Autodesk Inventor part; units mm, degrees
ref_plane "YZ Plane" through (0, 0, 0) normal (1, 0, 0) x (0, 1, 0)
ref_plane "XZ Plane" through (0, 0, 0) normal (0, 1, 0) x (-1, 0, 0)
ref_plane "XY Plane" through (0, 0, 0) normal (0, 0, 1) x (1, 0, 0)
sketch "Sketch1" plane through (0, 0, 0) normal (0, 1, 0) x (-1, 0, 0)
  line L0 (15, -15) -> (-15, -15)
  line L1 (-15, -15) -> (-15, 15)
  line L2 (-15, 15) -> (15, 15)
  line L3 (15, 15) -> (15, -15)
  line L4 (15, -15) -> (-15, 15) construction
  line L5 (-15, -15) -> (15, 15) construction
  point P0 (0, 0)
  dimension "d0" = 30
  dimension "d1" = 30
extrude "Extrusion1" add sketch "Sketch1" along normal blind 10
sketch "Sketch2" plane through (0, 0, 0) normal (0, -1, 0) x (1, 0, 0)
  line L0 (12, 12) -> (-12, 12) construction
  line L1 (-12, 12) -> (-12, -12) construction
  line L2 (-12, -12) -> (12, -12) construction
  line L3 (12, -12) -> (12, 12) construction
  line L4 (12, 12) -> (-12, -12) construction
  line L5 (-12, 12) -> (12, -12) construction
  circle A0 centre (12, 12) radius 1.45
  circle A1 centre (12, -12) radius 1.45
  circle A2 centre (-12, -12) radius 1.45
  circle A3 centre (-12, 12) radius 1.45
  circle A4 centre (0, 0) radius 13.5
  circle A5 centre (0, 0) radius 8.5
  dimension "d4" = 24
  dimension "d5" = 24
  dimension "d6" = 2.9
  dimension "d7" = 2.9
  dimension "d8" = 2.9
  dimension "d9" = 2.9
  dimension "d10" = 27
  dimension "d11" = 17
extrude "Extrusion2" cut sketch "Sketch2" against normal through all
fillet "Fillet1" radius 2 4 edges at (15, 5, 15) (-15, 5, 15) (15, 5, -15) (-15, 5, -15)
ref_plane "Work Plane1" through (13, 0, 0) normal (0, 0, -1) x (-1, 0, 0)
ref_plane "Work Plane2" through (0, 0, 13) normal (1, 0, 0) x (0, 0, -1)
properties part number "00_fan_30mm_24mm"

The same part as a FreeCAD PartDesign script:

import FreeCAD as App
import Part
import Sketcher

V = App.Vector
Q = App.Units.Quantity


def edges_at(feature, points):
    """Names of the edges that pass closest to the given points."""
    edges = feature.Shape.Edges
    near = lambda p: min(range(len(edges)), key=lambda i: edges[i].distToShape(Part.Vertex(*p))[0])
    return sorted({f"Edge{near(p) + 1}" for p in points})

doc = App.newDocument("Part")
body = doc.addObject("PartDesign::Body", "Body")
body.AllowCompound = True

sketch1 = body.newObject("Sketcher::SketchObject", "Sketch")
sketch1.AttachmentSupport = (doc.getObject("XZ_Plane"), [""])
sketch1.MapMode = "FlatFace"
sketch1.addGeometry([
    Part.LineSegment(V(15, -15, 0), V(-15, -15, 0)),
    Part.LineSegment(V(-15, -15, 0), V(-15, 15, 0)),
    Part.LineSegment(V(-15, 15, 0), V(15, 15, 0)),
    Part.LineSegment(V(15, 15, 0), V(15, -15, 0)),
], False)
sketch1.addConstraint([
    Sketcher.Constraint("Coincident", 0, 2, 1, 1),
    Sketcher.Constraint("Coincident", 1, 2, 2, 1),
    Sketcher.Constraint("Coincident", 2, 2, 3, 1),
    Sketcher.Constraint("Coincident", 3, 2, 0, 1),
    Sketcher.Constraint("Horizontal", 0),
    Sketcher.Constraint("Vertical", 1),
    Sketcher.Constraint("Horizontal", 2),
    Sketcher.Constraint("Vertical", 3),
    Sketcher.Constraint("Symmetric", 0, 2, 2, 2, -1, 1),
    Sketcher.Constraint("Equal", 2, 1),
    Sketcher.Constraint("DistanceX", 0, 2, 0, 1, Q("30 mm")),
])
pad1 = body.newObject("PartDesign::Pad", "Pad")
pad1.Profile = sketch1
pad1.Length = 10
pad1.Reversed = True

sketch2 = body.newObject("Sketcher::SketchObject", "Sketch001")
sketch2.AttachmentSupport = (doc.getObject("XZ_Plane"), [""])
sketch2.MapMode = "FlatFace"
sketch2.addGeometry([
    Part.Circle(V(12, 12, 0), V(0, 0, 1), 1.4),
    Part.Circle(V(12, -12, 0), V(0, 0, 1), 1.4),
    Part.Circle(V(-12, -12, 0), V(0, 0, 1), 1.4),
    Part.Circle(V(-12, 12, 0), V(0, 0, 1), 1.4),
    Part.Circle(V(0, 0, 0), V(0, 0, 1), 13.5),
    Part.Circle(V(0, 0, 0), V(0, 0, 1), 8.5),
], False)
sketch2.addConstraint([
    Sketcher.Constraint("Coincident", 4, 3, -1, 1),
    Sketcher.Constraint("Coincident", 5, 3, -1, 1),
    Sketcher.Constraint("Equal", 0, 1),
    Sketcher.Constraint("Equal", 1, 2),
    Sketcher.Constraint("Equal", 2, 3),
    Sketcher.Constraint("Symmetric", 0, 3, 2, 3, -1, 1),
    Sketcher.Constraint("Symmetric", 1, 3, 3, 3, -1, 1),
    Sketcher.Constraint("Symmetric", 1, 3, 2, 3, -2),
    Sketcher.Constraint("Diameter", 4, Q("27 mm")),
    Sketcher.Constraint("Diameter", 5, Q("17 mm")),
    Sketcher.Constraint("Diameter", 0, Q("2.9 mm")),
    Sketcher.Constraint("DistanceY", 1, 3, 0, 3, Q("24 mm")),
    Sketcher.Constraint("DistanceX", 2, 3, 1, 3, Q("24 mm")),
])
pocket1 = body.newObject("PartDesign::Pocket", "Pocket")
pocket1.Profile = sketch2
pocket1.Type = "ThroughAll"
doc.recompute()

fillet = body.newObject("PartDesign::Fillet", "Fillet")
fillet.Base = (pocket1, edges_at(pocket1, [
    (15, 5, 15),
    (-15, 5, 15),
    (15, 5, -15),
    (-15, 5, -15),
]))
fillet.Radius = 2

doc.recompute()
